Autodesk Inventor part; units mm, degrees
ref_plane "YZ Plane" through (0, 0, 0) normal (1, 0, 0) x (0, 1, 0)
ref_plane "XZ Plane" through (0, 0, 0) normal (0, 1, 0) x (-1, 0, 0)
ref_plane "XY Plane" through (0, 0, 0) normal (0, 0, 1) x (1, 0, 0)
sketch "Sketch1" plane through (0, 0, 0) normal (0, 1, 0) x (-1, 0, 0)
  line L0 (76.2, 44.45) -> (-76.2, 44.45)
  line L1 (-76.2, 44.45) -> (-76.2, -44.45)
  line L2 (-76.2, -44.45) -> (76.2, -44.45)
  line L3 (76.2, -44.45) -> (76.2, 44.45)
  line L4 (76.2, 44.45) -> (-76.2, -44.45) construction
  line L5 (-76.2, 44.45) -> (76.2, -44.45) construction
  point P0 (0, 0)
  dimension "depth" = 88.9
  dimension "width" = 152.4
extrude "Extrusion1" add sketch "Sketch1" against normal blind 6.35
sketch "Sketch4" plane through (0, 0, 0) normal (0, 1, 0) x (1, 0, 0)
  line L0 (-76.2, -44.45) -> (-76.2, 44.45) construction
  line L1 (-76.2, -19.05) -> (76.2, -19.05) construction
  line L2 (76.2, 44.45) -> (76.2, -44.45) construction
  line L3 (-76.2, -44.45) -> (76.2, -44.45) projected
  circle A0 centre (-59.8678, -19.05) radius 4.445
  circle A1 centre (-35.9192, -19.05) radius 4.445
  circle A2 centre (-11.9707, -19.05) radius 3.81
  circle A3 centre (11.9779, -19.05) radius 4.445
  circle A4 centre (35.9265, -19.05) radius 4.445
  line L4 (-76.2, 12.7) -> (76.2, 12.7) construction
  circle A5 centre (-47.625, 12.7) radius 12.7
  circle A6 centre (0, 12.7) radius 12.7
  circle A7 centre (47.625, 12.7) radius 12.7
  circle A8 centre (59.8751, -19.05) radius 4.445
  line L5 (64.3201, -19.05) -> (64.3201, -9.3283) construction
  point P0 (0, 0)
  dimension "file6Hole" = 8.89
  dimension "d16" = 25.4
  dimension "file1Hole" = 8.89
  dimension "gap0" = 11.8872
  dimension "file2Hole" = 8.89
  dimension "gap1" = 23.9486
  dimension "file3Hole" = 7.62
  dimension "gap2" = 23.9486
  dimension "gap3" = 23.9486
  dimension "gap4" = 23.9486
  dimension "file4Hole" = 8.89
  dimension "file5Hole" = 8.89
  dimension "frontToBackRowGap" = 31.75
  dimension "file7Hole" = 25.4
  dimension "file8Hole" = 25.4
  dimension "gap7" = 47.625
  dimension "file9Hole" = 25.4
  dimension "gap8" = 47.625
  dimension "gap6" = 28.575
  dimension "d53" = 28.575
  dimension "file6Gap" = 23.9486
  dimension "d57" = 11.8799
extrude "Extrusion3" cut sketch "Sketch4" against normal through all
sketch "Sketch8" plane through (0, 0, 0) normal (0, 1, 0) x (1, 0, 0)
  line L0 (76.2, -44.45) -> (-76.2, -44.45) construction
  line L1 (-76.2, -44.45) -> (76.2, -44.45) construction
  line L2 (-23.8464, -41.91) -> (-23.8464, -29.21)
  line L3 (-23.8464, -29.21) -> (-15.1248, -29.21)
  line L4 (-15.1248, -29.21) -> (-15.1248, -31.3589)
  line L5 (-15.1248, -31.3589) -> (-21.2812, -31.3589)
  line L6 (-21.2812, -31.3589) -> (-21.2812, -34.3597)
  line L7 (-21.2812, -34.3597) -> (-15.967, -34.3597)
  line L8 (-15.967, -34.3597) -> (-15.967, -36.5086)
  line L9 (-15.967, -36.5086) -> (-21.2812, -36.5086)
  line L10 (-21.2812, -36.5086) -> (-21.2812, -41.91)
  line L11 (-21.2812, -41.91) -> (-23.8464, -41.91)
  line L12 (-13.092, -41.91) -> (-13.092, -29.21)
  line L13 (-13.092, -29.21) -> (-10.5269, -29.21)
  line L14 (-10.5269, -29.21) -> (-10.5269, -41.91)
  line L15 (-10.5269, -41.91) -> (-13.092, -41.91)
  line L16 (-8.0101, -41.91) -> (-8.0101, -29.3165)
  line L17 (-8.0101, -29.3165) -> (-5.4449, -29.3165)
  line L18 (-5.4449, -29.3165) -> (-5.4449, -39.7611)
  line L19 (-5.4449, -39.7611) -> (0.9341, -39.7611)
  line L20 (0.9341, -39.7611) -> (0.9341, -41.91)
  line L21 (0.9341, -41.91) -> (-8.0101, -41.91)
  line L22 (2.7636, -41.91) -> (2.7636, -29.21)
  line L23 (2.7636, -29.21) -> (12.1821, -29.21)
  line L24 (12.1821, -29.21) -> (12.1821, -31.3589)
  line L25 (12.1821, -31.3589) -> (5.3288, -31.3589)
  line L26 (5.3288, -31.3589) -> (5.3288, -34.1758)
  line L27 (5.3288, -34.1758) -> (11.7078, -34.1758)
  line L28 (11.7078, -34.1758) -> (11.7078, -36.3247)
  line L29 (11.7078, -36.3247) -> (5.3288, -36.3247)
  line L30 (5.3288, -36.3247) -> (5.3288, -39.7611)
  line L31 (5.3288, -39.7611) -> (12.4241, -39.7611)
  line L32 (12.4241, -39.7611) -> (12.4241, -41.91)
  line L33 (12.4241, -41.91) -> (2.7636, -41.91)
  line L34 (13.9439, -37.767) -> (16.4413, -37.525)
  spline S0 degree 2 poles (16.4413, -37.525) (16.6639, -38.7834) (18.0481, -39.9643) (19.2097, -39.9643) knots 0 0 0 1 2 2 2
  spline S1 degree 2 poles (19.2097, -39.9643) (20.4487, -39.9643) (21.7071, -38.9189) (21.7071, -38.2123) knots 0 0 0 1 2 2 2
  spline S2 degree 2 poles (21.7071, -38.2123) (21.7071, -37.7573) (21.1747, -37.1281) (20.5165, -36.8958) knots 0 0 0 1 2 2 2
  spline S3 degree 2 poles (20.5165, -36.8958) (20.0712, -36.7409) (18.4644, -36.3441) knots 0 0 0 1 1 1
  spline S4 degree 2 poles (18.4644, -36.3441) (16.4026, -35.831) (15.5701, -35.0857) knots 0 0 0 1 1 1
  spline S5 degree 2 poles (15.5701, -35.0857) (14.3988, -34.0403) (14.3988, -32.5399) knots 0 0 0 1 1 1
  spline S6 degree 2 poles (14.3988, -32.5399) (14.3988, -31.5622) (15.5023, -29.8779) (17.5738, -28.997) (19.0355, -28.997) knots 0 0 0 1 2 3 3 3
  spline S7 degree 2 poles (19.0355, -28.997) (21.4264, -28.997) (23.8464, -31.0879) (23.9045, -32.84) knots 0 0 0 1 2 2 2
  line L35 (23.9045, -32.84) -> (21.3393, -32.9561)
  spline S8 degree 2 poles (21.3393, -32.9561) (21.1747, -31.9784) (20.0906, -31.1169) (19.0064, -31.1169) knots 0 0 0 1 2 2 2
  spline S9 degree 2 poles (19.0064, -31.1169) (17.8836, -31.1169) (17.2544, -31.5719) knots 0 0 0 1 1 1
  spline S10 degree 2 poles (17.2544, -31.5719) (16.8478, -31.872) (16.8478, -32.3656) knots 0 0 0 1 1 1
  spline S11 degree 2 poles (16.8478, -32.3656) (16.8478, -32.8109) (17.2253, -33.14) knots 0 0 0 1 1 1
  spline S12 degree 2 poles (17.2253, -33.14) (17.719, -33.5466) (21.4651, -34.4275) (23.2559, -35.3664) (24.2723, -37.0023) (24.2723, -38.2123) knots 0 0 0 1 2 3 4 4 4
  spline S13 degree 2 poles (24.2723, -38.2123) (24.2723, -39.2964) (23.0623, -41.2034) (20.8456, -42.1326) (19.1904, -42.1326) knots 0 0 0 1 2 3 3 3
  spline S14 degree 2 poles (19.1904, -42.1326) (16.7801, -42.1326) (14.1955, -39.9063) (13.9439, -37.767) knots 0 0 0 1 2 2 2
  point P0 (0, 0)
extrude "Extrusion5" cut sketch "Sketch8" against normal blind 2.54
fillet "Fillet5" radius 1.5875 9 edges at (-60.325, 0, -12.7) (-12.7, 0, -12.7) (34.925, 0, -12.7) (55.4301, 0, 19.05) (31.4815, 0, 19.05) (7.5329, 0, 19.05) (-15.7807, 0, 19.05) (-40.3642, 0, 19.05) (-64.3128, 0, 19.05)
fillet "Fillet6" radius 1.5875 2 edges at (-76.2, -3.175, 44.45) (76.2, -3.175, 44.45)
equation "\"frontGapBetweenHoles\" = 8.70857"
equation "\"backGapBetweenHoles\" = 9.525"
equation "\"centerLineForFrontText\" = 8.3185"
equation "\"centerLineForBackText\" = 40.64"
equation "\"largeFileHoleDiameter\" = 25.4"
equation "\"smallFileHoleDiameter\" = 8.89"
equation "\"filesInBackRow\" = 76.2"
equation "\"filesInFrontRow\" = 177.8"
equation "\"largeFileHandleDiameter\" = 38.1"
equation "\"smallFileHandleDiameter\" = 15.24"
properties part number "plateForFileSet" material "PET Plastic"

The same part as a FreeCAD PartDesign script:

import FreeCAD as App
import Part
import Sketcher
Q = App.Units.Quantity


def edges_at(feature, points):
    """Names of the edges that pass closest to the given points."""
    edges = feature.Shape.Edges
    near = lambda p: min(range(len(edges)), key=lambda i: edges[i].distToShape(Part.Vertex(*p))[0])
    return sorted({f"Edge{near(p) + 1}" for p in points})

doc = App.newDocument("Part")
body = doc.addObject("PartDesign::Body", "Body")

# Sketch on XZ plane
sketch1 = body.newObject("Sketcher::SketchObject", "Sketch")
sketch1.AttachmentSupport = (doc.getObject("XZ_Plane"), [""])
sketch1.MapMode = "FlatFace"
sketch1.addGeometry([
    Part.LineSegment(App.Vector(-76, -44, 0), App.Vector(-76, 44, 0)),
    Part.LineSegment(App.Vector(-76, 44, 0), App.Vector(76, 44, 0)),
    Part.LineSegment(App.Vector(76, 44, 0), App.Vector(76, -44, 0)),
    Part.LineSegment(App.Vector(76, -44, 0), App.Vector(-76, -44, 0)),
], False)
sketch1.addConstraint([
    Sketcher.Constraint("Coincident", 0, 2, 1, 1),
    Sketcher.Constraint("Coincident", 1, 2, 2, 1),
    Sketcher.Constraint("Coincident", 2, 2, 3, 1),
    Sketcher.Constraint("Coincident", 3, 2, 0, 1),
    Sketcher.Constraint("Vertical", 0),
    Sketcher.Constraint("Horizontal", 1),
    Sketcher.Constraint("Vertical", 2),
    Sketcher.Constraint("Horizontal", 3),
    Sketcher.Constraint("Symmetric", 0, 2, 2, 2, -1, 1),
    Sketcher.Constraint("DistanceX", 1, 1, 1, 2, Q("6 in")),
    Sketcher.Constraint("DistanceY", 0, 1, 0, 2, Q("3.5 in")),
])
pad1 = body.newObject("PartDesign::Pad", "Pad")
pad1.Profile = sketch1
pad1.Length = Q("0.25 in")

# Sketch on XZ plane
sketch2 = body.newObject("Sketcher::SketchObject", "Sketch001")
sketch2.AttachmentSupport = (doc.getObject("XZ_Plane"), [""])
sketch2.MapMode = "FlatFace"
sketch2.addGeometry([
    Part.Circle(App.Vector(-59.9, 19.1, 0), App.Vector(0, 0, 1), 4.4),  # 0
    Part.Circle(App.Vector(-35.9, 19.1, 0), App.Vector(0, 0, 1), 4.4),  # 1
    Part.Circle(App.Vector(-12, 19.1, 0), App.Vector(0, 0, 1), 3.8),  # 2
    Part.Circle(App.Vector(12, 19.1, 0), App.Vector(0, 0, 1), 4.4),  # 3
    Part.Circle(App.Vector(35.9, 19.1, 0), App.Vector(0, 0, 1), 4.4),  # 4
    Part.Circle(App.Vector(-47.6, -12.7, 0), App.Vector(0, 0, 1), 12.7),  # 5
    Part.Circle(App.Vector(0, -12.7, 0), App.Vector(0, 0, 1), 12.7),  # 6
    Part.Circle(App.Vector(47.6, -12.7, 0), App.Vector(0, 0, 1), 12.7),  # 7
    Part.Circle(App.Vector(59.9, 19.1, 0), App.Vector(0, 0, 1), 4.4),  # 8
], False)
sketch2.addConstraint([
    Sketcher.Constraint("Equal", 0, 1),
    Sketcher.Constraint("Equal", 1, 3),
    Sketcher.Constraint("Equal", 3, 4),
    Sketcher.Constraint("Equal", 5, 6),
    Sketcher.Constraint("Equal", 6, 7),
    Sketcher.Constraint("Equal", 4, 8),
    Sketcher.Constraint("Symmetric", 5, 3, 7, 3, -2),
    Sketcher.Constraint("PointOnObject", 6, 3, -2),
    Sketcher.Constraint("Horizontal", 0, 3, 1, 3),
    Sketcher.Constraint("Horizontal", 1, 3, 2, 3),
    Sketcher.Constraint("Horizontal", 2, 3, 3, 3),
    Sketcher.Constraint("Horizontal", 3, 3, 4, 3),
    Sketcher.Constraint("Horizontal", 5, 3, 6, 3),
    Sketcher.Constraint("Horizontal", 4, 3, 8, 3),
    Sketcher.Constraint("Diameter", 5, Q("1 in")),
    Sketcher.Constraint("Diameter", 2, Q("0.3 in")),
    Sketcher.Constraint("Diameter", 0, Q("0.35 in")),
    Sketcher.Constraint("DistanceY", 5, 3, 1, 3, Q("1.25 in")),
    Sketcher.Constraint("DistanceX", 5, 3, -1, 1, Q("1.875 in")),
    Sketcher.Constraint("DistanceY", 5, 3, -1, 1, Q("0.5 in")),
    Sketcher.Constraint("DistanceX", 0, 3, 1, 3, Q("23.9486 mm")),
    Sketcher.Constraint("DistanceX", 1, 3, 2, 3, Q("23.9485 mm")),
    Sketcher.Constraint("DistanceX", 2, 3, 3, 3, Q("23.9486 mm")),
    Sketcher.Constraint("DistanceX", 3, 3, 4, 3, Q("23.9486 mm")),
    Sketcher.Constraint("DistanceX", 4, 3, 8, 3, Q("23.9486 mm")),
    Sketcher.Constraint("DistanceX", 0, 3, -1, 1, Q("2.357 in")),
])
pocket1 = body.newObject("PartDesign::Pocket", "Pocket")
pocket1.Profile = sketch2
pocket1.Type = "ThroughAll"
pocket1.Reversed = True

# Sketch on XZ plane
sketch3 = body.newObject("Sketcher::SketchObject", "Sketch002")
sketch3.AttachmentSupport = (doc.getObject("XZ_Plane"), [""])
sketch3.MapMode = "FlatFace"
sketch3.addGeometry([
    Part.LineSegment(App.Vector(-23.8464, 29.21, 0), App.Vector(-23.8464, 41.91, 0)),  # 0
    Part.LineSegment(App.Vector(-23.8464, 41.91, 0), App.Vector(-21.2812, 41.91, 0)),  # 1
    Part.LineSegment(App.Vector(-21.2812, 41.91, 0), App.Vector(-21.2812, 36.5086, 0)),  # 2
    Part.LineSegment(App.Vector(-21.2812, 36.5086, 0), App.Vector(-15.967, 36.5086, 0)),  # 3
    Part.LineSegment(App.Vector(-15.967, 36.5086, 0), App.Vector(-15.967, 34.3597, 0)),  # 4
    Part.LineSegment(App.Vector(-15.967, 34.3597, 0), App.Vector(-21.2812, 34.3597, 0)),  # 5
    Part.LineSegment(App.Vector(-21.2812, 34.3597, 0), App.Vector(-21.2812, 31.3589, 0)),  # 6
    Part.LineSegment(App.Vector(-21.2812, 31.3589, 0), App.Vector(-15.1248, 31.3589, 0)),  # 7
    Part.LineSegment(App.Vector(-15.1248, 31.3589, 0), App.Vector(-15.1248, 29.21, 0)),  # 8
    Part.LineSegment(App.Vector(-15.1248, 29.21, 0), App.Vector(-23.8464, 29.21, 0)),  # 9
    Part.LineSegment(App.Vector(-13.092, 29.21, 0), App.Vector(-13.092, 41.91, 0)),  # 10
    Part.LineSegment(App.Vector(-13.092, 41.91, 0), App.Vector(-10.5269, 41.91, 0)),  # 11
    Part.LineSegment(App.Vector(-10.5269, 41.91, 0), App.Vector(-10.5269, 29.21, 0)),  # 12
    Part.LineSegment(App.Vector(-10.5269, 29.21, 0), App.Vector(-13.092, 29.21, 0)),  # 13
    Part.LineSegment(App.Vector(-8.0101, 29.3165, 0), App.Vector(-8.0101, 41.91, 0)),  # 14
    Part.LineSegment(App.Vector(-8.0101, 41.91, 0), App.Vector(0.9341, 41.91, 0)),  # 15
    Part.LineSegment(App.Vector(0.9341, 41.91, 0), App.Vector(0.9341, 39.7611, 0)),  # 16
    Part.LineSegment(App.Vector(0.9341, 39.7611, 0), App.Vector(-5.4449, 39.7611, 0)),  # 17
    Part.LineSegment(App.Vector(-5.4449, 39.7611, 0), App.Vector(-5.4449, 29.3165, 0)),  # 18
    Part.LineSegment(App.Vector(-5.4449, 29.3165, 0), App.Vector(-8.0101, 29.3165, 0)),  # 19
    Part.LineSegment(App.Vector(2.7636, 29.21, 0), App.Vector(2.7636, 41.91, 0)),  # 20
    Part.LineSegment(App.Vector(2.7636, 41.91, 0), App.Vector(12.4241, 41.91, 0)),  # 21
    Part.LineSegment(App.Vector(12.4241, 41.91, 0), App.Vector(12.4241, 39.7611, 0)),  # 22
    Part.LineSegment(App.Vector(12.4241, 39.7611, 0), App.Vector(5.3288, 39.7611, 0)),  # 23
    Part.LineSegment(App.Vector(5.3288, 39.7611, 0), App.Vector(5.3288, 36.3247, 0)),  # 24
    Part.LineSegment(App.Vector(5.3288, 36.3247, 0), App.Vector(11.7078, 36.3247, 0)),  # 25
    Part.LineSegment(App.Vector(11.7078, 36.3247, 0), App.Vector(11.7078, 34.1758, 0)),  # 26
    Part.LineSegment(App.Vector(11.7078, 34.1758, 0), App.Vector(5.3288, 34.1758, 0)),  # 27
    Part.LineSegment(App.Vector(5.3288, 34.1758, 0), App.Vector(5.3288, 31.3589, 0)),  # 28
    Part.LineSegment(App.Vector(5.3288, 31.3589, 0), App.Vector(12.1821, 31.3589, 0)),  # 29
    Part.LineSegment(App.Vector(12.1821, 31.3589, 0), App.Vector(12.1821, 29.21, 0)),  # 30
    Part.LineSegment(App.Vector(12.1821, 29.21, 0), App.Vector(2.7636, 29.21, 0)),  # 31
    Part.LineSegment(App.Vector(16.4413, 37.525, 0), App.Vector(13.9439, 37.767, 0)),  # 32
    Part.BSplineCurve([App.Vector(19.1904, 42.1326, 0), App.Vector(16.7801, 42.1326, 0), App.Vector(14.1955, 39.9063, 0), App.Vector(13.9439, 37.767, 0)], [3, 1, 3], [0, 1, 2], False, 2, [1, 1, 1, 1], False),  # 33
    Part.BSplineCurve([App.Vector(24.2723, 38.2123, 0), App.Vector(24.2723, 39.2964, 0), App.Vector(23.0623, 41.2034, 0), App.Vector(20.8456, 42.1326, 0), App.Vector(19.1904, 42.1326, 0)], [3, 1, 1, 3], [0, 1, 2, 3], False, 2, [1, 1, 1, 1, 1], False),  # 34
    Part.BSplineCurve([App.Vector(17.2253, 33.14, 0), App.Vector(17.719, 33.5466, 0), App.Vector(21.4651, 34.4275, 0), App.Vector(23.2559, 35.3664, 0), App.Vector(24.2723, 37.0023, 0), App.Vector(24.2723, 38.2123, 0)], [3, 1, 1, 1, 3], [0, 1, 2, 3, 4], False, 2, [1, 1, 1, 1, 1, 1], False),  # 35
    Part.BSplineCurve([App.Vector(16.8478, 32.3656, 0), App.Vector(16.8478, 32.8109, 0), App.Vector(17.2253, 33.14, 0)], [3, 3], [0, 1], False, 2, [1, 1, 1], False),  # 36
    Part.BSplineCurve([App.Vector(17.2544, 31.5719, 0), App.Vector(16.8478, 31.872, 0), App.Vector(16.8478, 32.3656, 0)], [3, 3], [0, 1], False, 2, [1, 1, 1], False),  # 37
    Part.BSplineCurve([App.Vector(19.0064, 31.1169, 0), App.Vector(17.8836, 31.1169, 0), App.Vector(17.2544, 31.5719, 0)], [3, 3], [0, 1], False, 2, [1, 1, 1], False),  # 38
    Part.BSplineCurve([App.Vector(21.3393, 32.9561, 0), App.Vector(21.1747, 31.9784, 0), App.Vector(20.0906, 31.1169, 0), App.Vector(19.0064, 31.1169, 0)], [3, 1, 3], [0, 1, 2], False, 2, [1, 1, 1, 1], False),  # 39
    Part.LineSegment(App.Vector(21.3393, 32.9561, 0), App.Vector(23.9045, 32.84, 0)),  # 40
    Part.BSplineCurve([App.Vector(19.0355, 28.997, 0), App.Vector(21.4264, 28.997, 0), App.Vector(23.8464, 31.0879, 0), App.Vector(23.9045, 32.84, 0)], [3, 1, 3], [0, 1, 2], False, 2, [1, 1, 1, 1], False),  # 41
    Part.BSplineCurve([App.Vector(14.3988, 32.5399, 0), App.Vector(14.3988, 31.5622, 0), App.Vector(15.5023, 29.8779, 0), App.Vector(17.5738, 28.997, 0), App.Vector(19.0355, 28.997, 0)], [3, 1, 1, 3], [0, 1, 2, 3], False, 2, [1, 1, 1, 1, 1], False),  # 42
    Part.BSplineCurve([App.Vector(15.5701, 35.0857, 0), App.Vector(14.3988, 34.0403, 0), App.Vector(14.3988, 32.5399, 0)], [3, 3], [0, 1], False, 2, [1, 1, 1], False),  # 43
    Part.BSplineCurve([App.Vector(18.4644, 36.3441, 0), App.Vector(16.4026, 35.831, 0), App.Vector(15.5701, 35.0857, 0)], [3, 3], [0, 1], False, 2, [1, 1, 1], False),  # 44
    Part.BSplineCurve([App.Vector(20.5165, 36.8958, 0), App.Vector(20.0712, 36.7409, 0), App.Vector(18.4644, 36.3441, 0)], [3, 3], [0, 1], False, 2, [1, 1, 1], False),  # 45
    Part.BSplineCurve([App.Vector(21.7071, 38.2123, 0), App.Vector(21.7071, 37.7573, 0), App.Vector(21.1747, 37.1281, 0), App.Vector(20.5165, 36.8958, 0)], [3, 1, 3], [0, 1, 2], False, 2, [1, 1, 1, 1], False),  # 46
    Part.BSplineCurve([App.Vector(19.2097, 39.9643, 0), App.Vector(20.4487, 39.9643, 0), App.Vector(21.7071, 38.9189, 0), App.Vector(21.7071, 38.2123, 0)], [3, 1, 3], [0, 1, 2], False, 2, [1, 1, 1, 1], False),  # 47
    Part.BSplineCurve([App.Vector(16.4413, 37.525, 0), App.Vector(16.6639, 38.7834, 0), App.Vector(18.0481, 39.9643, 0), App.Vector(19.2097, 39.9643, 0)], [3, 1, 3], [0, 1, 2], False, 2, [1, 1, 1, 1], False),  # 48
], False)
sketch3.addConstraint([
    Sketcher.Constraint("Block", 33),
    Sketcher.Constraint("Block", 34),
    Sketcher.Constraint("Block", 35),
    Sketcher.Constraint("Block", 36),
    Sketcher.Constraint("Block", 37),
    Sketcher.Constraint("Block", 38),
    Sketcher.Constraint("Block", 39),
    Sketcher.Constraint("Block", 41),
    Sketcher.Constraint("Block", 42),
    Sketcher.Constraint("Block", 43),
    Sketcher.Constraint("Block", 44),
    Sketcher.Constraint("Block", 45),
    Sketcher.Constraint("Block", 46),
    Sketcher.Constraint("Block", 47),
    Sketcher.Constraint("Block", 48),
    Sketcher.Constraint("Coincident", 0, 2, 1, 1),
    Sketcher.Constraint("Coincident", 1, 2, 2, 1),
    Sketcher.Constraint("Coincident", 2, 2, 3, 1),
    Sketcher.Constraint("Coincident", 3, 2, 4, 1),
    Sketcher.Constraint("Coincident", 4, 2, 5, 1),
    Sketcher.Constraint("Coincident", 5, 2, 6, 1),
    Sketcher.Constraint("Coincident", 6, 2, 7, 1),
    Sketcher.Constraint("Coincident", 7, 2, 8, 1),
    Sketcher.Constraint("Coincident", 8, 2, 9, 1),
    Sketcher.Constraint("Coincident", 9, 2, 0, 1),
    Sketcher.Constraint("Coincident", 10, 2, 11, 1),
    Sketcher.Constraint("Coincident", 11, 2, 12, 1),
    Sketcher.Constraint("Coincident", 12, 2, 13, 1),
    Sketcher.Constraint("Coincident", 13, 2, 10, 1),
    Sketcher.Constraint("Coincident", 14, 2, 15, 1),
    Sketcher.Constraint("Coincident", 15, 2, 16, 1),
    Sketcher.Constraint("Coincident", 16, 2, 17, 1),
    Sketcher.Constraint("Coincident", 17, 2, 18, 1),
    Sketcher.Constraint("Coincident", 18, 2, 19, 1),
    Sketcher.Constraint("Coincident", 19, 2, 14, 1),
    Sketcher.Constraint("Coincident", 20, 2, 21, 1),
    Sketcher.Constraint("Coincident", 21, 2, 22, 1),
    Sketcher.Constraint("Coincident", 22, 2, 23, 1),
    Sketcher.Constraint("Coincident", 23, 2, 24, 1),
    Sketcher.Constraint("Coincident", 24, 2, 25, 1),
    Sketcher.Constraint("Coincident", 25, 2, 26, 1),
    Sketcher.Constraint("Coincident", 26, 2, 27, 1),
    Sketcher.Constraint("Coincident", 27, 2, 28, 1),
    Sketcher.Constraint("Coincident", 28, 2, 29, 1),
    Sketcher.Constraint("Coincident", 29, 2, 30, 1),
    Sketcher.Constraint("Coincident", 30, 2, 31, 1),
    Sketcher.Constraint("Coincident", 31, 2, 20, 1),
    Sketcher.Constraint("Coincident", 32, 2, 33, 2),
    Sketcher.Constraint("Coincident", 39, 1, 40, 1),
    Sketcher.Constraint("Coincident", 40, 2, 41, 2),
    Sketcher.Constraint("Coincident", 48, 1, 32, 1),
    Sketcher.Constraint("Vertical", 0),
    Sketcher.Constraint("Horizontal", 1),
    Sketcher.Constraint("Vertical", 2),
    Sketcher.Constraint("Horizontal", 3),
    Sketcher.Constraint("Vertical", 4),
    Sketcher.Constraint("Horizontal", 5),
    Sketcher.Constraint("Vertical", 6),
    Sketcher.Constraint("Horizontal", 7),
    Sketcher.Constraint("Vertical", 8),
    Sketcher.Constraint("Horizontal", 9),
    Sketcher.Constraint("Vertical", 10),
    Sketcher.Constraint("Horizontal", 11),
    Sketcher.Constraint("Vertical", 12),
    Sketcher.Constraint("Horizontal", 13),
    Sketcher.Constraint("Vertical", 14),
    Sketcher.Constraint("Horizontal", 15),
    Sketcher.Constraint("Vertical", 16),
    Sketcher.Constraint("Horizontal", 17),
    Sketcher.Constraint("Vertical", 18),
    Sketcher.Constraint("Horizontal", 19),
    Sketcher.Constraint("Vertical", 20),
    Sketcher.Constraint("Horizontal", 21),
    Sketcher.Constraint("Vertical", 22),
    Sketcher.Constraint("Horizontal", 23),
    Sketcher.Constraint("Vertical", 24),
    Sketcher.Constraint("Horizontal", 25),
    Sketcher.Constraint("Vertical", 26),
    Sketcher.Constraint("Horizontal", 27),
    Sketcher.Constraint("Vertical", 28),
    Sketcher.Constraint("Horizontal", 29),
    Sketcher.Constraint("Vertical", 30),
    Sketcher.Constraint("Horizontal", 31),
    Sketcher.Constraint("Horizontal", 1, 2, 10, 2),
    Sketcher.Constraint("Horizontal", 9, 2, 12, 2),
    Sketcher.Constraint("Horizontal", 11, 2, 14, 2),
    Sketcher.Constraint("Horizontal", 15, 2, 20, 2),
    Sketcher.Constraint("Horizontal", 17, 2, 22, 2),
    Sketcher.Constraint("Horizontal", 7, 2, 28, 2),
    Sketcher.Constraint("Horizontal", 13, 2, 30, 2),
    Sketcher.Constraint("Vertical", 2, 2, 5, 2),
    Sketcher.Constraint("Vertical", 24, 2, 27, 2),
    Sketcher.Constraint("Equal", 1, 11),
    Sketcher.Constraint("Equal", 13, 19),
    Sketcher.Constraint("Equal", 17, 25),
    Sketcher.Constraint("Equal", 4, 8),
    Sketcher.Constraint("Equal", 8, 16),
    Sketcher.Constraint("Equal", 22, 26),
    Sketcher.Constraint("DistanceY", 0, 1, 0, 2, Q("0.5 in")),
    Sketcher.Constraint("DistanceX", 1, 1, 1, 2, Q("0.101 in")),
    Sketcher.Constraint("DistanceY", -1, 1, 0, 2, Q("1.65 in")),
    Sketcher.Constraint("DistanceX", 31, 2, 31, 1, Q("0.3708 in")),
    Sketcher.Constraint("DistanceY", 4, 2, 4, 1, Q("0.0846 in")),
    Sketcher.Constraint("DistanceY", 14, 1, 14, 2, Q("0.4958 in")),
    Sketcher.Constraint("DistanceY", 24, 2, 24, 1, Q("0.1353 in")),
    Sketcher.Constraint("DistanceX", 20, 2, 23, 2, Q("0.101 in")),
    Sketcher.Constraint("DistanceX", 3, 1, 3, 2, Q("5.3142 mm")),
    Sketcher.Constraint("DistanceX", 7, 1, 7, 2, Q("6.1564 mm")),
    Sketcher.Constraint("DistanceX", 15, 1, 15, 2, Q("8.9442 mm")),
    Sketcher.Constraint("DistanceX", 21, 1, 21, 2, Q("9.6605 mm")),
    Sketcher.Constraint("DistanceY", 2, 2, 2, 1, Q("5.4014 mm")),
    Sketcher.Constraint("DistanceX", -1, 1, 20, 2, Q("0.1088 in")),
    Sketcher.Constraint("DistanceX", 3, 2, 10, 2, Q("0.1132 in")),
    Sketcher.Constraint("DistanceX", 7, 2, 14, 2, Q("0.2801 in")),
    Sketcher.Constraint("DistanceX", 17, 2, 21, 2, Q("0.7035 in")),
])
pocket2 = body.newObject("PartDesign::Pocket", "Pocket001")
pocket2.Profile = sketch3
pocket2.Length = Q("0.1 in")
pocket2.Reversed = True
doc.recompute()

fillet = body.newObject("PartDesign::Fillet", "Fillet")
fillet.Base = (pocket2, edges_at(pocket2, [
    (-60.325, 0, -12.7),
    (-12.7, 0, -12.7),
    (34.925, 0, -12.7),
    (55.43, 0, 19.05),
    (31.482, 0, 19.05),
    (7.533, 0, 19.05),
    (-15.781, 0, 19.05),
    (-40.364, 0, 19.05),
    (-64.313, 0, 19.05),
]))
fillet.Radius = Q("0.0625 in")
doc.recompute()

fillet2 = body.newObject("PartDesign::Fillet", "Fillet001")
fillet2.Base = (fillet, edges_at(fillet, [(-76.2, -3.175, 44.45), (76.2, -3.175, 44.45)]))
fillet2.Radius = Q("0.0625 in")

doc.recompute()
